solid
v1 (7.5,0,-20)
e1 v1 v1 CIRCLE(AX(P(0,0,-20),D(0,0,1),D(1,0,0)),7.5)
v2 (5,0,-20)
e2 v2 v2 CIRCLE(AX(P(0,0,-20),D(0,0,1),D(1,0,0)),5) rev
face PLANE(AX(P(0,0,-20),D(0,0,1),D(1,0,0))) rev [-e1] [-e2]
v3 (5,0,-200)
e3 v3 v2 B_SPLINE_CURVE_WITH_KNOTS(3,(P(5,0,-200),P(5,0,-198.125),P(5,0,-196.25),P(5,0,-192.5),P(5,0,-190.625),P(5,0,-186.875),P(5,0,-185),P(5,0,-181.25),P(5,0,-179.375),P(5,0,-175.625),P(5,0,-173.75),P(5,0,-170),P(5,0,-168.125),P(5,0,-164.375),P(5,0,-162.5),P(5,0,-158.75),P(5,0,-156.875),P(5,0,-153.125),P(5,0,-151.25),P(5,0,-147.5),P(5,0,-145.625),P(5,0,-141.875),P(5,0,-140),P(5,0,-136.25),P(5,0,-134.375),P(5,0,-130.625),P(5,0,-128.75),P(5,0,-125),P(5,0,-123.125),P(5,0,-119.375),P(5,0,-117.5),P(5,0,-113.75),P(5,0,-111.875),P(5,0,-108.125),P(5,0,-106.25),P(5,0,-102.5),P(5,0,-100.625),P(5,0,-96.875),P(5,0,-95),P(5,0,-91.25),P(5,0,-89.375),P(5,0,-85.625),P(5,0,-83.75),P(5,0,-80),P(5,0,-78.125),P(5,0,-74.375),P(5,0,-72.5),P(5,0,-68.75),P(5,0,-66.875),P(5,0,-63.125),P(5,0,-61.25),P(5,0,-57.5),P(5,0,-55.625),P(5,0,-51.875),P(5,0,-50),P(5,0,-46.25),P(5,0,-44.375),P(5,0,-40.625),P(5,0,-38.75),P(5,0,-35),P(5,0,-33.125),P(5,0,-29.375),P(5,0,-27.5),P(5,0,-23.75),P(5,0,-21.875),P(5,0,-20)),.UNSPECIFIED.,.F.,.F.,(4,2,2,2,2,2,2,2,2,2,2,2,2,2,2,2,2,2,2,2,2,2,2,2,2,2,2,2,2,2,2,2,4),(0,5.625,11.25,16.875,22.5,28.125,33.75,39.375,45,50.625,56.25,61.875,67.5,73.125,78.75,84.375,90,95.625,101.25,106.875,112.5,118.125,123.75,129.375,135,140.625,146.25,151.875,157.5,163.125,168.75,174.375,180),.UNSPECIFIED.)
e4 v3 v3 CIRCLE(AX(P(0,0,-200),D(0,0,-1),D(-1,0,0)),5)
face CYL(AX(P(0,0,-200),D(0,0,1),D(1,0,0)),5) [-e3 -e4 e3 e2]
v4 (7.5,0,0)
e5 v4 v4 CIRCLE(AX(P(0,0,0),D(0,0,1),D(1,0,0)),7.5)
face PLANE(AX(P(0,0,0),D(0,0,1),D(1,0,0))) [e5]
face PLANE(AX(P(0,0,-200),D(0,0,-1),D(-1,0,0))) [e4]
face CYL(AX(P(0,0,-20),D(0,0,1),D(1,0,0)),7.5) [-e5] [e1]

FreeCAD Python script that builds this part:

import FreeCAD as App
import Part
import Sketcher
Q = App.Units.Quantity

doc = App.newDocument("Part")
params = doc.addObject("Spreadsheet::Sheet", "Params")
for row, (alias, value) in enumerate([
    ("sketch1_diameter", "15 mm"),
    ("pad1_length", "20 mm"),
    ("sketch2_diameter", "10 mm"),
    ("pad2_length", "180 mm"),
], start=1):
    params.set(f"A{row}", alias)
    params.set(f"B{row}", "=" + value)
    params.setAlias(f"B{row}", alias)

body = doc.addObject("PartDesign::Body", "Body")

sketch1 = doc.addObject("Sketcher::SketchObject", "Sketch")
body.addObject(sketch1)
sketch1.AttachmentSupport = (doc.XY_Plane, [""])
sketch1.MapMode = "FlatFace"
sketch1.addGeometry(Part.Circle(App.Vector(0, 0, 0), App.Vector(0, 0, 1), 8), False)
sketch1.addConstraint([
    Sketcher.Constraint("Coincident", 0, 3, -1, 1),
    Sketcher.Constraint("Diameter", 0, Q("15 mm")),
])
sketch1.setExpression("Constraints[1]", "Params.sketch1_diameter")
pad1 = doc.addObject("PartDesign::Pad", "Pad")
body.addObject(pad1)
pad1.Profile = sketch1
pad1.setExpression("Length", "Params.pad1_length")
pad1.Reversed = True

sketch2 = doc.addObject("Sketcher::SketchObject", "Sketch001")
body.addObject(sketch2)
sketch2.AttachmentSupport = (doc.XY_Plane, [""])
sketch2.MapMode = "FlatFace"
sketch2.AttachmentOffset = App.Placement(App.Vector(0, 0, -20), App.Rotation())
sketch2.addGeometry(Part.Circle(App.Vector(0, 0, 0), App.Vector(0, 0, 1), 5), False)
sketch2.addConstraint([
    Sketcher.Constraint("Coincident", 0, 3, -1, 1),
    Sketcher.Constraint("Diameter", 0, Q("10 mm")),
])
sketch2.setExpression("Constraints[1]", "Params.sketch2_diameter")
pad2 = doc.addObject("PartDesign::Pad", "Pad001")
body.addObject(pad2)
pad2.Profile = sketch2
pad2.setExpression("Length", "Params.pad2_length")
pad2.Reversed = True

doc.recompute()
